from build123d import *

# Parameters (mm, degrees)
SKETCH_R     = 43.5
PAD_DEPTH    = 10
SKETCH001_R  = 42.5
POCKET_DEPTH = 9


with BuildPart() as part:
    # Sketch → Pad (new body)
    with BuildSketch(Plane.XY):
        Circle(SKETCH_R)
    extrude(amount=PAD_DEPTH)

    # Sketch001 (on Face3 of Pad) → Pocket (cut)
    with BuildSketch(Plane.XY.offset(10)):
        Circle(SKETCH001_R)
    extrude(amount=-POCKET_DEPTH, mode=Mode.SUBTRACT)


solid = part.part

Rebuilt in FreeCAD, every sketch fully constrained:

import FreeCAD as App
import Part
import Sketcher

doc = App.newDocument("Part")
body = doc.addObject("PartDesign::Body", "Body")

sketch1 = body.newObject("Sketcher::SketchObject", "Sketch")
sketch1.AttachmentSupport = (doc.getObject("XY_Plane"), [""])
sketch1.MapMode = "FlatFace"
sketch1.addGeometry(Part.Circle(App.Vector(0, 0, 0), App.Vector(0, 0, 1), 43.5), False)
sketch1.addConstraint([
    Sketcher.Constraint("Coincident", 0, 3, -1, 1),
    Sketcher.Constraint("Diameter", 0, 87.0),
])
pad1 = body.newObject("PartDesign::Pad", "Pad")
pad1.Profile = sketch1
pad1.Length = 10

sketch2 = body.newObject("Sketcher::SketchObject", "Sketch001")
sketch2.AttachmentSupport = (doc.getObject("XY_Plane"), [""])
sketch2.MapMode = "FlatFace"
sketch2.AttachmentOffset = App.Placement(App.Vector(0, 0, 10), App.Rotation())
sketch2.addGeometry(Part.Circle(App.Vector(0, 0, 0), App.Vector(0, 0, 1), 42.5), False)
sketch2.addConstraint([
    Sketcher.Constraint("Coincident", 0, 3, -1, 1),
    Sketcher.Constraint("Diameter", 0, 85.0),
])
pocket1 = body.newObject("PartDesign::Pocket", "Pocket")
pocket1.Profile = sketch2
pocket1.Length = 9

doc.recompute()
